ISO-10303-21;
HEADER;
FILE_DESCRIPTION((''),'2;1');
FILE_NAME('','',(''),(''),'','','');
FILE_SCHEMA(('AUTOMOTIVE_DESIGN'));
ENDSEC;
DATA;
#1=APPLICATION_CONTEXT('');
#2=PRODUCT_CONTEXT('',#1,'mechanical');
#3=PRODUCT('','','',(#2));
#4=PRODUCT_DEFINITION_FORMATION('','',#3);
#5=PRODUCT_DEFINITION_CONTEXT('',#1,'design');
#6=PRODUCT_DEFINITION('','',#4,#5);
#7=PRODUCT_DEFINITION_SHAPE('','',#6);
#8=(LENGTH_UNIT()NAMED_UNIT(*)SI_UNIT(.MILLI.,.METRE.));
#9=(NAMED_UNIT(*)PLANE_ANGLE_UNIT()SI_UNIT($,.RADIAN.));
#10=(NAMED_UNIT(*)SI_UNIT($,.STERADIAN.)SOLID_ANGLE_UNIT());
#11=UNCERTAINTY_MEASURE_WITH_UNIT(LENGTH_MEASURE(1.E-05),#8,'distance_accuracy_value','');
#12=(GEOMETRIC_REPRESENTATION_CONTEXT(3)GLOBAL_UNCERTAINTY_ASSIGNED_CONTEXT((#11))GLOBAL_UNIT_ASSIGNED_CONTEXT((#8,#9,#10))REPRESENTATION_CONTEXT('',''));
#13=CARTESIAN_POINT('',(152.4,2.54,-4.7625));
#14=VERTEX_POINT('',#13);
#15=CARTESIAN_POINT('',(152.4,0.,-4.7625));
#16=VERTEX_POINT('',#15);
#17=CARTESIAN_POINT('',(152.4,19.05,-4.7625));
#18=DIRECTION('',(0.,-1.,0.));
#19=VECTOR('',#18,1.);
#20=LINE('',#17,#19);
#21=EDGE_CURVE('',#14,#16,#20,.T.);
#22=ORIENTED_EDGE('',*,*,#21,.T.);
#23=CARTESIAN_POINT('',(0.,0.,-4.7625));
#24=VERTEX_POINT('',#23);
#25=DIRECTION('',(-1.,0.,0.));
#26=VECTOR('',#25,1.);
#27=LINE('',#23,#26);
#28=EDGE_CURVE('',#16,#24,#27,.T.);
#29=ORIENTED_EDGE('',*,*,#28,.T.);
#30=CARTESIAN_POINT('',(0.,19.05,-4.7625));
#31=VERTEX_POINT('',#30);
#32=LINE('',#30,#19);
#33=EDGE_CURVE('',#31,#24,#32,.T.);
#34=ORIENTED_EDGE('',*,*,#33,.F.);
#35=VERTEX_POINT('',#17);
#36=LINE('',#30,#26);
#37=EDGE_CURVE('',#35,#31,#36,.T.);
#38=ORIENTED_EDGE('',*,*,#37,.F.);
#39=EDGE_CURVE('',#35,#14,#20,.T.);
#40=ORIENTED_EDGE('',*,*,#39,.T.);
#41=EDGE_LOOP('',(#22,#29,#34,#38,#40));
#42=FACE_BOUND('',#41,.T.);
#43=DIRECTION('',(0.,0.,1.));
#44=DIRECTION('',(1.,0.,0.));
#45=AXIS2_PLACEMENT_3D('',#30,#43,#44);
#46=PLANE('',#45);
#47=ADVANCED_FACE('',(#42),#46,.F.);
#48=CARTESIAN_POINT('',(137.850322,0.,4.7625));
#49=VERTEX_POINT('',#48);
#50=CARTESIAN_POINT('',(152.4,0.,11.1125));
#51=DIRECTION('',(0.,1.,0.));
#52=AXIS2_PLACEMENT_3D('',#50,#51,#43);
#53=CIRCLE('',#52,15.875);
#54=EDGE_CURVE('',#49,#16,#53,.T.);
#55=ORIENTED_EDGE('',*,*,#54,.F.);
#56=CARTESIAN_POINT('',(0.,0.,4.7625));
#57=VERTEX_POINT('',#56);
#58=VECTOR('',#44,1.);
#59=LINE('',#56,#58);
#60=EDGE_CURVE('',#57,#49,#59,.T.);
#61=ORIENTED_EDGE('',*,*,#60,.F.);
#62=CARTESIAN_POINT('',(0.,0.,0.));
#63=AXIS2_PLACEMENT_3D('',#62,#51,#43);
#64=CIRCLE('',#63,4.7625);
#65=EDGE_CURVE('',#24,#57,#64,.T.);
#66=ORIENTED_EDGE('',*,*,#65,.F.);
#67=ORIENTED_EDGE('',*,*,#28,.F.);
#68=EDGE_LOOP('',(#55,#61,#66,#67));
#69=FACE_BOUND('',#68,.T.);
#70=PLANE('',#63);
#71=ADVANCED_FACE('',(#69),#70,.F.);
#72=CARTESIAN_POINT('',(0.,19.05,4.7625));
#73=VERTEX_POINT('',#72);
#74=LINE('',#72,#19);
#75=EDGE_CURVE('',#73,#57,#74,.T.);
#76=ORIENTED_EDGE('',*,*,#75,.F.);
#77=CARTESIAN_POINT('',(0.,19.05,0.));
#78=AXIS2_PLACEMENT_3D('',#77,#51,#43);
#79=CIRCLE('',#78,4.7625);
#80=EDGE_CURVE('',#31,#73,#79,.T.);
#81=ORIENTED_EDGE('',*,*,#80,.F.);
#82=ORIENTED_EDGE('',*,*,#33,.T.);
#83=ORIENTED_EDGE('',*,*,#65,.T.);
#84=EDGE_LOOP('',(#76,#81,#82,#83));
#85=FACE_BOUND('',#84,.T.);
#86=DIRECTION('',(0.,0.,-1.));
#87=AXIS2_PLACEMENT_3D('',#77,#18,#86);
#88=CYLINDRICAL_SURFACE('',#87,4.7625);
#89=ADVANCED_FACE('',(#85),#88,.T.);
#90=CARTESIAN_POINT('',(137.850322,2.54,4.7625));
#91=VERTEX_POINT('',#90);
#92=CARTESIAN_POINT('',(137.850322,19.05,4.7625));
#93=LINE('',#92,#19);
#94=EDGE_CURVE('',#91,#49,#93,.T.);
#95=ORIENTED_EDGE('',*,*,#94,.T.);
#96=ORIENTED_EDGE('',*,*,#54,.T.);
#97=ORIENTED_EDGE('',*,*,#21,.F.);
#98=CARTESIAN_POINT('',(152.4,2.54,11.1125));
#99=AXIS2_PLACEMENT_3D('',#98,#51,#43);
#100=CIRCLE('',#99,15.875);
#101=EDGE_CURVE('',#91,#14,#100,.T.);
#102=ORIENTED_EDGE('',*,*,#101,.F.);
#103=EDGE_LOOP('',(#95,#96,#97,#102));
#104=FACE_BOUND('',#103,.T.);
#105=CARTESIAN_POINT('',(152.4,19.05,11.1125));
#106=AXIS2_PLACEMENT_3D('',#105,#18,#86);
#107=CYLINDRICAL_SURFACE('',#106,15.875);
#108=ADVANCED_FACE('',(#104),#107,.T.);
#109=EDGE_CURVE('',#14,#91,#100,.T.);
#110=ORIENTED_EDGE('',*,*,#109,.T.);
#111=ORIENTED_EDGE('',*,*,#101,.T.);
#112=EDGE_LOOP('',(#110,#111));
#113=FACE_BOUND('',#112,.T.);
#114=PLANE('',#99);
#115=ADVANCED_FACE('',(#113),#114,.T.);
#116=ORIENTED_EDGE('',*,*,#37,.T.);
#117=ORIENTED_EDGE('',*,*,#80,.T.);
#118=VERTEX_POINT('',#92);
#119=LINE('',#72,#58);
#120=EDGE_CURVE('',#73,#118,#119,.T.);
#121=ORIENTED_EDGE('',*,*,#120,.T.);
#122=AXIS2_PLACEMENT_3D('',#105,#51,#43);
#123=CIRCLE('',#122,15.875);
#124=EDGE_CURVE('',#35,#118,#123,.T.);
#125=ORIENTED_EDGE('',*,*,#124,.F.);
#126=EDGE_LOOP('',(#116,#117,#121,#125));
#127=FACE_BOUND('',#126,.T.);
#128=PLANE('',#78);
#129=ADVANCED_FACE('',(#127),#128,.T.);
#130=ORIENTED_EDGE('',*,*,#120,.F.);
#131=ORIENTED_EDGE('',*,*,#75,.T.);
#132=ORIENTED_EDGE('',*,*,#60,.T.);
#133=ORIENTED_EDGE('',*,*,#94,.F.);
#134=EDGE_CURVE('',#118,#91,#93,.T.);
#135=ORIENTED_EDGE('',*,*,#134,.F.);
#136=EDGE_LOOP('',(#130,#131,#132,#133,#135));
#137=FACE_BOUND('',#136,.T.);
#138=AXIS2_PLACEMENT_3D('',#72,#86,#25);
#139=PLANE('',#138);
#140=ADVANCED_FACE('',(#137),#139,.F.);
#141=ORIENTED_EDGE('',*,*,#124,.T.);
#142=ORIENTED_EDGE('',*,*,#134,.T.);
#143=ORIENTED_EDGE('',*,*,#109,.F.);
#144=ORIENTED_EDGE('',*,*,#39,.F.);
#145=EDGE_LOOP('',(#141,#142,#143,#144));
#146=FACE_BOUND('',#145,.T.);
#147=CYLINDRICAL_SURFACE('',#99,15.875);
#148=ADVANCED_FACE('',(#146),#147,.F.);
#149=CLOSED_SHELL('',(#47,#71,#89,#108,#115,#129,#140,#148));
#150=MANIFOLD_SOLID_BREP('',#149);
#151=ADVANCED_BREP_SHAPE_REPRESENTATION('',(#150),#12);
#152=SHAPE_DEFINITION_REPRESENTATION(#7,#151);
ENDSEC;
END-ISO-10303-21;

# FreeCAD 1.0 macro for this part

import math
import FreeCAD as App
import Part
import Sketcher
from FreeCAD import Vector
Q = App.Units.Quantity

doc = App.newDocument("Part")
params = doc.addObject("Spreadsheet::Sheet", "Params")
for row, (alias, value) in enumerate([
    ("sketch1_width", "6 in"),
    ("sketch1_radius", "0.625 in"),
    ("sketch1_radius2", "0.1875 in"),
    ("pad1_length", "0.75 in"),
    ("sketch2_diameter", "1.25 in"),
    ("pocket1_length", "0.65 in"),
], start=1):
    params.set(f"A{row}", alias)
    params.set(f"B{row}", "=" + value)
    params.setAlias(f"B{row}", alias)

body = doc.addObject("PartDesign::Body", "Body")

sketch1 = doc.addObject("Sketcher::SketchObject", "Sketch")
body.addObject(sketch1)
sketch1.AttachmentSupport = (doc.XZ_Plane, [""])
sketch1.MapMode = "FlatFace"
sketch1.addGeometry([
    Part.LineSegment(Vector(0, 4.8, 0), Vector(137.9, 4.8, 0)),
    Part.ArcOfCircle(Part.Circle(Vector(152.4, 11.1, 0), Vector(0, 0, 1), 15.9), math.radians(-90), math.radians(204)),
    Part.LineSegment(Vector(152.4, -4.8, 0), Vector(0, -4.8, 0)),
    Part.ArcOfCircle(Part.Circle(Vector(0, 0, 0), Vector(0, 0, 1), 4.8), math.radians(90), math.radians(270)),
], False)
sketch1.addConstraint([
    Sketcher.Constraint("Coincident", 0, 2, 1, 2),
    Sketcher.Constraint("Tangent", 1, 1, 2, 1),
    Sketcher.Constraint("Tangent", 2, 2, 3, 2),
    Sketcher.Constraint("Tangent", 3, 1, 0, 1),
    Sketcher.Constraint("Horizontal", 0),
    Sketcher.Constraint("Horizontal", 2),
    Sketcher.Constraint("Coincident", 3, 3, -1, 1),
    Sketcher.Constraint("DistanceX", 2, 2, 2, 1, Q("6 in")),
    Sketcher.Constraint("Radius", 1, Q("0.625 in")),
    Sketcher.Constraint("Radius", 3, Q("0.1875 in")),
])
sketch1.setExpression("Constraints[7]", "Params.sketch1_width")
sketch1.setExpression("Constraints[8]", "Params.sketch1_radius")
sketch1.setExpression("Constraints[9]", "Params.sketch1_radius2")
pad1 = doc.addObject("PartDesign::Pad", "Pad")
body.addObject(pad1)
pad1.Profile = sketch1
pad1.setExpression("Length", "Params.pad1_length")
pad1.Reversed = True

sketch2 = doc.addObject("Sketcher::SketchObject", "Sketch001")
body.addObject(sketch2)
sketch2.AttachmentSupport = (doc.XZ_Plane, [""])
sketch2.MapMode = "FlatFace"
sketch2.AttachmentOffset = App.Placement(Vector(0, 0, -0.1 * 25.4), App.Rotation())
sketch2.addGeometry(Part.Circle(Vector(152, 11, 0), Vector(0, 0, 1), 16), False)
sketch2.addConstraint([
    Sketcher.Constraint("Diameter", 0, Q("1.25 in")),
    Sketcher.Constraint("DistanceX", -1, 1, 0, 3, Q("6 in")),
    Sketcher.Constraint("DistanceY", -1, 1, 0, 3, Q("0.4375 in")),
])
sketch2.setExpression("Constraints[0]", "Params.sketch2_diameter")
pocket1 = doc.addObject("PartDesign::Pocket", "Pocket")
body.addObject(pocket1)
pocket1.Profile = sketch2
pocket1.setExpression("Length", "Params.pocket1_length")

doc.recompute()
